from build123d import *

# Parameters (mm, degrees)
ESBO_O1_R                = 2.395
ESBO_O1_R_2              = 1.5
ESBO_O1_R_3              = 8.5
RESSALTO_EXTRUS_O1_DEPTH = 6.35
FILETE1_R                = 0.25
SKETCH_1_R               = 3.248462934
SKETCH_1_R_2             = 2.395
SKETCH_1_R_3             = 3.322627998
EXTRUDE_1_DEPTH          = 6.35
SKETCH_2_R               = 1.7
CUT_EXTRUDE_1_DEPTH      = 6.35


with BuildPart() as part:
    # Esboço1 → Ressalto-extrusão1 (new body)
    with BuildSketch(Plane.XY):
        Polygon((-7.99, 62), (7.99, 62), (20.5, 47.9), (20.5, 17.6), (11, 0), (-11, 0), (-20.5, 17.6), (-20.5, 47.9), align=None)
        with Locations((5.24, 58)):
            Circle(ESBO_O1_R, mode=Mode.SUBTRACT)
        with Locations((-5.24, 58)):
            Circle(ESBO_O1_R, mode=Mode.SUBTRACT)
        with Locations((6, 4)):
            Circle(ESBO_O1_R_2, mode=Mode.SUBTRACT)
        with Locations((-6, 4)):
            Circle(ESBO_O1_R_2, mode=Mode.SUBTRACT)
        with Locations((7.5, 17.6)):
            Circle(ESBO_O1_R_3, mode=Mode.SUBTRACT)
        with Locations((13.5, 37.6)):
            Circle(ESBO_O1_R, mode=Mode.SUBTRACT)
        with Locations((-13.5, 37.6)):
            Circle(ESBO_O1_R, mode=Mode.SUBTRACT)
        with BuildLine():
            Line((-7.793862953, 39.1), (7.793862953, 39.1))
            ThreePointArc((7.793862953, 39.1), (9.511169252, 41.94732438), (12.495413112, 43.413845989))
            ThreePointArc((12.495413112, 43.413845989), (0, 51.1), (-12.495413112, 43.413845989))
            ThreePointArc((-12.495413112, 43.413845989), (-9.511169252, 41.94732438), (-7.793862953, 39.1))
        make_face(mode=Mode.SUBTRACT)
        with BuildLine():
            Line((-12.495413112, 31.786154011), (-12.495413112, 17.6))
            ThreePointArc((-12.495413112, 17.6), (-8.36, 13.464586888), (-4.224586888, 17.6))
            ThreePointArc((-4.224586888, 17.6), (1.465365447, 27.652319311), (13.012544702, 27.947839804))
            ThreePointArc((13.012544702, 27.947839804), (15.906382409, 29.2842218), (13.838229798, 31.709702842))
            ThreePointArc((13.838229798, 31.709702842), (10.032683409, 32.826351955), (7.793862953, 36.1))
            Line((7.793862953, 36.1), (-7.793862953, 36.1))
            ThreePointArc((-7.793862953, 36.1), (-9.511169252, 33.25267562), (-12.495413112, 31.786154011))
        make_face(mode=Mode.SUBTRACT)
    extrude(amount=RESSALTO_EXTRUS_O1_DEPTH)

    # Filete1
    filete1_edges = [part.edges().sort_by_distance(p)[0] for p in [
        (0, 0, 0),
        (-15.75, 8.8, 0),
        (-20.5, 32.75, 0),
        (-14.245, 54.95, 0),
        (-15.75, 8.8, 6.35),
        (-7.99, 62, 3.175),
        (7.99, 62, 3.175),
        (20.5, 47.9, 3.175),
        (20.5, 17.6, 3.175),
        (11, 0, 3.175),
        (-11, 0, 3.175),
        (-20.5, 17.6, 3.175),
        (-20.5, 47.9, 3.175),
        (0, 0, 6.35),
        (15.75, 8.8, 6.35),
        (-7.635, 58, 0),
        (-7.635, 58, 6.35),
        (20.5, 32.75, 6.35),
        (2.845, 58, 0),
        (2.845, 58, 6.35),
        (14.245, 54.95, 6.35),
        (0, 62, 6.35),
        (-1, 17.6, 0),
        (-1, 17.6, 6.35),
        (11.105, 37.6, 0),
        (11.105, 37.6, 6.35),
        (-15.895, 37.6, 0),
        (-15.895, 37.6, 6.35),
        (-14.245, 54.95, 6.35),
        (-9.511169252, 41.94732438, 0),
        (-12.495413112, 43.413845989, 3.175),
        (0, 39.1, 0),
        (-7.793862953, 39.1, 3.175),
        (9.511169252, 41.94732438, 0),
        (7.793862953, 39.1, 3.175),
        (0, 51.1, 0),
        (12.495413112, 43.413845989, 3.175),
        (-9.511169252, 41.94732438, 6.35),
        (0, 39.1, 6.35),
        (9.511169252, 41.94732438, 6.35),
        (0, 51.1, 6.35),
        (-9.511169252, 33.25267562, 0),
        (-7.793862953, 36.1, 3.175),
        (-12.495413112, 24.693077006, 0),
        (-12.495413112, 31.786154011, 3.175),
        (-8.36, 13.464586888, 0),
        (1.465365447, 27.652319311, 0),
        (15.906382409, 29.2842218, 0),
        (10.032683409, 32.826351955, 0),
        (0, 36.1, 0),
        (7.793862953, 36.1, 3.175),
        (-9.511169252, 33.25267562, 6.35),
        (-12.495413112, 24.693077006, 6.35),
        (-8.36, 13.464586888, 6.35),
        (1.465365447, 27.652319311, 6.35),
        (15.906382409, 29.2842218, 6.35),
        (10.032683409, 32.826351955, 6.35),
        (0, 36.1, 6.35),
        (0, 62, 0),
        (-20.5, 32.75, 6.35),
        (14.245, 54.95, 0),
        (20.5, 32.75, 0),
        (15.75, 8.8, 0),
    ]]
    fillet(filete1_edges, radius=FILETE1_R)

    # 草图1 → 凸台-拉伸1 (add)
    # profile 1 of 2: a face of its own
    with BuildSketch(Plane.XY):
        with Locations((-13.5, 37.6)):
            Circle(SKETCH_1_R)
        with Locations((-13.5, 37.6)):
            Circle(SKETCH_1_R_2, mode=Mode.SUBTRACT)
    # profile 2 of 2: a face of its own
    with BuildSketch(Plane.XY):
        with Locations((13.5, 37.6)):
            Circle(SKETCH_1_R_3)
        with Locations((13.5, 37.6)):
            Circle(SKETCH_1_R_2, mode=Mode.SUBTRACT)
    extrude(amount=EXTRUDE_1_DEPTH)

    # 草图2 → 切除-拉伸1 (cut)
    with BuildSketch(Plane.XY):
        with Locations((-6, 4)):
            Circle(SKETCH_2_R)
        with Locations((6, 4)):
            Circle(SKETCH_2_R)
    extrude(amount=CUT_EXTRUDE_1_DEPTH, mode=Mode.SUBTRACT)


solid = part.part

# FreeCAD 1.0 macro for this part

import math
import FreeCAD as App
import Part
import Sketcher

doc = App.newDocument("Part")
body = doc.addObject("PartDesign::Body", "Body")

# Sketch on XY plane
sketch1 = body.newObject("Sketcher::SketchObject", "Sketch")
sketch1.AttachmentSupport = (doc.getObject("XY_Plane"), [""])
sketch1.MapMode = "FlatFace"
sketch1.addGeometry(Part.LineSegment(App.Vector(7.99, 62, 0), App.Vector(-7.99, 62, 0)), False)
sketch1.addGeometry(Part.LineSegment(App.Vector(-7.99, 62, 0), App.Vector(-20.5, 47.9, 0)), False)
sketch1.addGeometry(Part.LineSegment(App.Vector(-20.5, 47.9, 0), App.Vector(-20.5, 17.6, 0)), False)
sketch1.addGeometry(Part.LineSegment(App.Vector(-20.5, 17.6, 0), App.Vector(-11, 0, 0)), False)
sketch1.addGeometry(Part.LineSegment(App.Vector(-11, 0, 0), App.Vector(11, 0, 0)), False)
sketch1.addGeometry(Part.LineSegment(App.Vector(11, 0, 0), App.Vector(20.5, 17.6, 0)), False)
sketch1.addGeometry(Part.LineSegment(App.Vector(20.5, 17.6, 0), App.Vector(20.5, 47.9, 0)), False)
sketch1.addGeometry(Part.LineSegment(App.Vector(20.5, 47.9, 0), App.Vector(7.99, 62, 0)), False)
sketch1.addGeometry(Part.Circle(App.Vector(6, 4, 0), App.Vector(0, 0, 1), 1.5), False)
sketch1.addGeometry(Part.Circle(App.Vector(7.5, 17.6, 0), App.Vector(0, 0, 1), 8.5), False)
sketch1.addGeometry(Part.ArcOfCircle(Part.Circle(App.Vector(-13.5, 37.6, 0), App.Vector(0, 0, 1), 5.9), math.radians(-80.196542), math.radians(-14.728396)), False)
sketch1.addGeometry(Part.LineSegment(App.Vector(-7.793863, 36.1, 0), App.Vector(7.793863, 36.1, 0)), False)
sketch1.addGeometry(Part.ArcOfCircle(Part.Circle(App.Vector(13.5, 37.6, 0), App.Vector(0, 0, 1), 5.9), math.radians(-165.271604), math.radians(-86.713598)), False)
sketch1.addGeometry(Part.ArcOfCircle(Part.Circle(App.Vector(13.952884, 29.712992, 0), App.Vector(0, 0, 1), 2), math.radians(-118.045308), math.radians(93.286402)), False)
sketch1.addGeometry(Part.ArcOfCircle(Part.Circle(App.Vector(7.5, 17.6, 0), App.Vector(0, 0, 1), 11.724587), math.radians(61.954692), math.radians(180)), False)
sketch1.addGeometry(Part.ArcOfCircle(Part.Circle(App.Vector(-8.36, 17.6, 0), App.Vector(0, 0, 1), 4.135413), math.radians(180), math.radians(360)), False)
sketch1.addGeometry(Part.LineSegment(App.Vector(-12.495413, 17.6, 0), App.Vector(-12.495413, 31.786154, 0)), False)
sketch1.addGeometry(Part.Circle(App.Vector(-6, 4, 0), App.Vector(0, 0, 1), 1.5), False)
sketch1.addGeometry(Part.Circle(App.Vector(13.5, 37.6, 0), App.Vector(0, 0, 1), 2.395), False)
sketch1.addGeometry(Part.Circle(App.Vector(5.24, 58, 0), App.Vector(0, 0, 1), 2.395), False)
sketch1.addGeometry(Part.ArcOfCircle(Part.Circle(App.Vector(-13.5, 37.6, 0), App.Vector(0, 0, 1), 5.9), math.radians(14.728396), math.radians(80.196542)), False)
sketch1.addGeometry(Part.ArcOfCircle(Part.Circle(App.Vector(0, 37.1, 0), App.Vector(0, 0, 1), 14), math.radians(26.807155), math.radians(153.192845)), False)
sketch1.addGeometry(Part.ArcOfCircle(Part.Circle(App.Vector(13.5, 37.6, 0), App.Vector(0, 0, 1), 5.9), math.radians(99.803458), math.radians(165.271604)), False)
sketch1.addGeometry(Part.LineSegment(App.Vector(7.793863, 39.1, 0), App.Vector(-7.793863, 39.1, 0)), False)
sketch1.addGeometry(Part.Circle(App.Vector(-13.5, 37.6, 0), App.Vector(0, 0, 1), 2.395), False)
sketch1.addGeometry(Part.Circle(App.Vector(-5.24, 58, 0), App.Vector(0, 0, 1), 2.395), False)
sketch1.addConstraint(Sketcher.Constraint("Coincident", 0, 2, 1, 1))
sketch1.addConstraint(Sketcher.Constraint("Coincident", 1, 2, 2, 1))
sketch1.addConstraint(Sketcher.Constraint("Coincident", 2, 2, 3, 1))
sketch1.addConstraint(Sketcher.Constraint("Coincident", 3, 2, 4, 1))
sketch1.addConstraint(Sketcher.Constraint("Coincident", 4, 2, 5, 1))
sketch1.addConstraint(Sketcher.Constraint("Coincident", 5, 2, 6, 1))
sketch1.addConstraint(Sketcher.Constraint("Coincident", 6, 2, 7, 1))
sketch1.addConstraint(Sketcher.Constraint("Coincident", 7, 2, 0, 1))
sketch1.addConstraint(Sketcher.Constraint("Coincident", 10, 2, 11, 1))
sketch1.addConstraint(Sketcher.Constraint("Coincident", 11, 2, 12, 1))
sketch1.addConstraint(Sketcher.Constraint("Tangent", 12, 2, 13, 2))
sketch1.addConstraint(Sketcher.Constraint("Tangent", 13, 1, 14, 1))
sketch1.addConstraint(Sketcher.Constraint("Tangent", 14, 2, 15, 2))
sketch1.addConstraint(Sketcher.Constraint("Tangent", 15, 1, 16, 1))
sketch1.addConstraint(Sketcher.Constraint("Coincident", 16, 2, 10, 1))
sketch1.addConstraint(Sketcher.Constraint("Coincident", 20, 2, 21, 2))
sketch1.addConstraint(Sketcher.Constraint("Coincident", 21, 1, 22, 1))
sketch1.addConstraint(Sketcher.Constraint("Coincident", 22, 2, 23, 1))
sketch1.addConstraint(Sketcher.Constraint("Coincident", 23, 2, 20, 1))
sketch1.addConstraint(Sketcher.Constraint("Horizontal", 0))
sketch1.addConstraint(Sketcher.Constraint("Vertical", 2))
sketch1.addConstraint(Sketcher.Constraint("Horizontal", 4))
sketch1.addConstraint(Sketcher.Constraint("Vertical", 6))
sketch1.addConstraint(Sketcher.Constraint("Horizontal", 11))
sketch1.addConstraint(Sketcher.Constraint("Vertical", 16))
sketch1.addConstraint(Sketcher.Constraint("Horizontal", 23))
sketch1.addConstraint(Sketcher.Constraint("Coincident", 14, 3, 9, 3))
sketch1.addConstraint(Sketcher.Constraint("Coincident", 18, 3, 12, 3))
sketch1.addConstraint(Sketcher.Constraint("Coincident", 20, 3, 10, 3))
sketch1.addConstraint(Sketcher.Constraint("Coincident", 22, 3, 12, 3))
sketch1.addConstraint(Sketcher.Constraint("Coincident", 24, 3, 10, 3))
sketch1.addConstraint(Sketcher.Constraint("Equal", 10, 12))
sketch1.addConstraint(Sketcher.Constraint("Equal", 8, 17))
sketch1.addConstraint(Sketcher.Constraint("Equal", 18, 19))
sketch1.addConstraint(Sketcher.Constraint("Equal", 12, 20))
sketch1.addConstraint(Sketcher.Constraint("Equal", 20, 22))
sketch1.addConstraint(Sketcher.Constraint("Equal", 19, 24))
sketch1.addConstraint(Sketcher.Constraint("Equal", 24, 25))
sketch1.addConstraint(Sketcher.Constraint("Symmetric", 3, 2, 4, 2, -1, 1))
sketch1.addConstraint(Sketcher.Constraint("Symmetric", 10, 3, 12, 3, -2))
sketch1.addConstraint(Sketcher.Constraint("Symmetric", 8, 3, 17, 3, -2))
sketch1.addConstraint(Sketcher.Constraint("Symmetric", 19, 3, 25, 3, -2))
sketch1.addConstraint(Sketcher.Constraint("Symmetric", 2, 2, 5, 2, -2))
sketch1.addConstraint(Sketcher.Constraint("PointOnObject", 21, 3, -2))
sketch1.addConstraint(Sketcher.Constraint("Horizontal", 14, 3, 15, 3))
sketch1.addConstraint(Sketcher.Constraint("Horizontal", 15, 3, 2, 2))
sketch1.addConstraint(Sketcher.Constraint("Horizontal", 1, 2, 6, 2))
sketch1.addConstraint(Sketcher.Constraint("Vertical", 16, 2, 20, 2))
sketch1.addConstraint(Sketcher.Constraint("Vertical", 11, 2, 22, 2))
sketch1.addConstraint(Sketcher.Constraint("Equal", 1, 7))
sketch1.addConstraint(Sketcher.Constraint("Diameter", 8, 3.0))
sketch1.addConstraint(Sketcher.Constraint("Diameter", 9, 17.0))
sketch1.addConstraint(Sketcher.Constraint("Radius", 13, 2.0))
sketch1.addConstraint(Sketcher.Constraint("Radius", 21, 14.0))
sketch1.addConstraint(Sketcher.Constraint("Radius", 10, 5.9))
sketch1.addConstraint(Sketcher.Constraint("Diameter", 18, 4.79))
sketch1.addConstraint(Sketcher.Constraint("DistanceX", 4, 1, 4, 2, 22.0))
sketch1.addConstraint(Sketcher.Constraint("DistanceY", 2, 2, 2, 1, 30.3))
sketch1.addConstraint(Sketcher.Constraint("DistanceX", -1, 1, 8, 3, 6.0))
sketch1.addConstraint(Sketcher.Constraint("DistanceY", -1, 1, 8, 3, 4.0))
sketch1.addConstraint(Sketcher.Constraint("DistanceY", -1, 1, 19, 3, 58.0))
sketch1.addConstraint(Sketcher.Constraint("DistanceY", -1, 1, 0, 2, 62.0))
sketch1.addConstraint(Sketcher.Constraint("DistanceX", 10, 3, 9, 3, 21.0))
sketch1.addConstraint(Sketcher.Constraint("DistanceY", 9, 3, 10, 3, 20.0))
sketch1.addConstraint(Sketcher.Constraint("DistanceX", 9, 3, 12, 3, 6.0))
sketch1.addConstraint(Sketcher.Constraint("DistanceX", 1, 2, 20, 3, 7.0))
sketch1.addConstraint(Sketcher.Constraint("DistanceY", 10, 2, 21, 3, 1.0))
sketch1.addConstraint(Sketcher.Constraint("DistanceY", 11, 2, 22, 2, 3.0))
sketch1.addConstraint(Sketcher.Constraint("DistanceX", 0, 2, 0, 1, 15.98))
sketch1.addConstraint(Sketcher.Constraint("DistanceY", -1, 1, 9, 3, 17.6))
sketch1.addConstraint(Sketcher.Constraint("DistanceX", 15, 3, -1, 1, 8.36))
sketch1.addConstraint(Sketcher.Constraint("DistanceX", -1, 1, 19, 3, 5.24))
pad1 = body.newObject("PartDesign::Pad", "Pad")
pad1.Profile = sketch1
pad1.Length = 6.35
doc.recompute()

fillet = body.newObject("PartDesign::Fillet", "Fillet")
fillet.Base = (pad1, ["Edge1"])
fillet.UseAllEdges = True
fillet.Radius = 0.25

# Sketch on XY plane
sketch2 = body.newObject("Sketcher::SketchObject", "Sketch001")
sketch2.AttachmentSupport = (doc.getObject("XY_Plane"), [""])
sketch2.MapMode = "FlatFace"
sketch2.addGeometry(Part.Circle(App.Vector(-13.5, 37.6, 0), App.Vector(0, 0, 1), 3.248463), False)
sketch2.addGeometry(Part.Circle(App.Vector(-13.5, 37.6, 0), App.Vector(0, 0, 1), 2.395), False)
sketch2.addGeometry(Part.Circle(App.Vector(13.5, 37.6, 0), App.Vector(0, 0, 1), 3.322628), False)
sketch2.addGeometry(Part.Circle(App.Vector(13.5, 37.6, 0), App.Vector(0, 0, 1), 2.395), False)
sketch2.addConstraint(Sketcher.Constraint("Coincident", 1, 3, 0, 3))
sketch2.addConstraint(Sketcher.Constraint("Coincident", 3, 3, 2, 3))
sketch2.addConstraint(Sketcher.Constraint("Equal", 1, 3))
sketch2.addConstraint(Sketcher.Constraint("Symmetric", 0, 3, 2, 3, -2))
sketch2.addConstraint(Sketcher.Constraint("Diameter", 1, 4.79))
sketch2.addConstraint(Sketcher.Constraint("DistanceX", 0, 3, 2, 3, 27.0))
sketch2.addConstraint(Sketcher.Constraint("DistanceY", -1, 1, 0, 3, 37.6))
sketch2.addConstraint(Sketcher.Constraint("Diameter", 0, 6.496926))
sketch2.addConstraint(Sketcher.Constraint("Diameter", 2, 6.645256))
pad2 = body.newObject("PartDesign::Pad", "Pad001")
pad2.Profile = sketch2
pad2.Length = 6.35

# Sketch on XY plane
sketch3 = body.newObject("Sketcher::SketchObject", "Sketch002")
sketch3.AttachmentSupport = (doc.getObject("XY_Plane"), [""])
sketch3.MapMode = "FlatFace"
sketch3.addGeometry(Part.Circle(App.Vector(-6, 4, 0), App.Vector(0, 0, 1), 1.7), False)
sketch3.addGeometry(Part.Circle(App.Vector(6, 4, 0), App.Vector(0, 0, 1), 1.7), False)
sketch3.addConstraint(Sketcher.Constraint("Equal", 0, 1))
sketch3.addConstraint(Sketcher.Constraint("Symmetric", 0, 3, 1, 3, -2))
sketch3.addConstraint(Sketcher.Constraint("Diameter", 0, 3.4))
sketch3.addConstraint(Sketcher.Constraint("DistanceX", 0, 3, -1, 1, 6.0))
sketch3.addConstraint(Sketcher.Constraint("DistanceY", -1, 1, 0, 3, 4.0))
pocket1 = body.newObject("PartDesign::Pocket", "Pocket")
pocket1.Profile = sketch3
pocket1.Length = 6.35
pocket1.Reversed = True

doc.recompute()
